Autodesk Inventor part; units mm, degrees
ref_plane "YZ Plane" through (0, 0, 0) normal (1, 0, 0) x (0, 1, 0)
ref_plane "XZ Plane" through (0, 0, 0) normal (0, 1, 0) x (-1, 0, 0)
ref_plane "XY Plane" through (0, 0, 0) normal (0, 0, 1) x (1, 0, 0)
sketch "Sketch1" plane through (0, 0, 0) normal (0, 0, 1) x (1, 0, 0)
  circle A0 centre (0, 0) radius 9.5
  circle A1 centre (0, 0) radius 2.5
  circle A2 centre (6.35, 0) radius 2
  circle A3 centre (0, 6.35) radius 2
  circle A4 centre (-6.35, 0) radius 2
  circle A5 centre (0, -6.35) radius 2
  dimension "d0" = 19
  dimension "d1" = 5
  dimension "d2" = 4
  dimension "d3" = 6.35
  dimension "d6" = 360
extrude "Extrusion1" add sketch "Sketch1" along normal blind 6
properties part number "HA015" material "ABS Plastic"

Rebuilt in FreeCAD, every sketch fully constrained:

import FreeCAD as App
import Part
import Sketcher

V = App.Vector

doc = App.newDocument("Part")
body = doc.addObject("PartDesign::Body", "Body")

sketch1 = body.newObject("Sketcher::SketchObject", "Sketch")
sketch1.AttachmentSupport = (doc.getObject("XY_Plane"), [""])
sketch1.MapMode = "FlatFace"
sketch1.addGeometry([
    Part.Circle(V(0, 0, 0), V(0, 0, 1), 9.5),
    Part.Circle(V(0, -6.3, 0), V(0, 0, 1), 2),
    Part.Circle(V(-6.3, 0, 0), V(0, 0, 1), 2),
    Part.Circle(V(0, 0, 0), V(0, 0, 1), 2.5),
    Part.Circle(V(6.3, 0, 0), V(0, 0, 1), 2),
    Part.Circle(V(0, 6.3, 0), V(0, 0, 1), 2),
], False)
sketch1.addConstraint([
    Sketcher.Constraint("Coincident", 0, 3, -1, 1),
    Sketcher.Constraint("Coincident", 3, 3, -1, 1),
    Sketcher.Constraint("Equal", 1, 2),
    Sketcher.Constraint("Equal", 2, 4),
    Sketcher.Constraint("Equal", 4, 5),
    Sketcher.Constraint("Symmetric", 2, 3, 4, 3, -1, 1),
    Sketcher.Constraint("Symmetric", 1, 3, 5, 3, -1, 1),
    Sketcher.Constraint("PointOnObject", 1, 3, -2),
    Sketcher.Constraint("PointOnObject", 2, 3, -1),
    Sketcher.Constraint("Diameter", 0, 19.0),
    Sketcher.Constraint("Diameter", 1, 4.0),
    Sketcher.Constraint("Diameter", 3, 5.0),
    Sketcher.Constraint("DistanceY", 1, 3, -1, 1, 6.35),
    Sketcher.Constraint("DistanceX", 2, 3, -1, 1, 6.35),
])
pad1 = body.newObject("PartDesign::Pad", "Pad")
pad1.Profile = sketch1
pad1.Length = 6

doc.recompute()
